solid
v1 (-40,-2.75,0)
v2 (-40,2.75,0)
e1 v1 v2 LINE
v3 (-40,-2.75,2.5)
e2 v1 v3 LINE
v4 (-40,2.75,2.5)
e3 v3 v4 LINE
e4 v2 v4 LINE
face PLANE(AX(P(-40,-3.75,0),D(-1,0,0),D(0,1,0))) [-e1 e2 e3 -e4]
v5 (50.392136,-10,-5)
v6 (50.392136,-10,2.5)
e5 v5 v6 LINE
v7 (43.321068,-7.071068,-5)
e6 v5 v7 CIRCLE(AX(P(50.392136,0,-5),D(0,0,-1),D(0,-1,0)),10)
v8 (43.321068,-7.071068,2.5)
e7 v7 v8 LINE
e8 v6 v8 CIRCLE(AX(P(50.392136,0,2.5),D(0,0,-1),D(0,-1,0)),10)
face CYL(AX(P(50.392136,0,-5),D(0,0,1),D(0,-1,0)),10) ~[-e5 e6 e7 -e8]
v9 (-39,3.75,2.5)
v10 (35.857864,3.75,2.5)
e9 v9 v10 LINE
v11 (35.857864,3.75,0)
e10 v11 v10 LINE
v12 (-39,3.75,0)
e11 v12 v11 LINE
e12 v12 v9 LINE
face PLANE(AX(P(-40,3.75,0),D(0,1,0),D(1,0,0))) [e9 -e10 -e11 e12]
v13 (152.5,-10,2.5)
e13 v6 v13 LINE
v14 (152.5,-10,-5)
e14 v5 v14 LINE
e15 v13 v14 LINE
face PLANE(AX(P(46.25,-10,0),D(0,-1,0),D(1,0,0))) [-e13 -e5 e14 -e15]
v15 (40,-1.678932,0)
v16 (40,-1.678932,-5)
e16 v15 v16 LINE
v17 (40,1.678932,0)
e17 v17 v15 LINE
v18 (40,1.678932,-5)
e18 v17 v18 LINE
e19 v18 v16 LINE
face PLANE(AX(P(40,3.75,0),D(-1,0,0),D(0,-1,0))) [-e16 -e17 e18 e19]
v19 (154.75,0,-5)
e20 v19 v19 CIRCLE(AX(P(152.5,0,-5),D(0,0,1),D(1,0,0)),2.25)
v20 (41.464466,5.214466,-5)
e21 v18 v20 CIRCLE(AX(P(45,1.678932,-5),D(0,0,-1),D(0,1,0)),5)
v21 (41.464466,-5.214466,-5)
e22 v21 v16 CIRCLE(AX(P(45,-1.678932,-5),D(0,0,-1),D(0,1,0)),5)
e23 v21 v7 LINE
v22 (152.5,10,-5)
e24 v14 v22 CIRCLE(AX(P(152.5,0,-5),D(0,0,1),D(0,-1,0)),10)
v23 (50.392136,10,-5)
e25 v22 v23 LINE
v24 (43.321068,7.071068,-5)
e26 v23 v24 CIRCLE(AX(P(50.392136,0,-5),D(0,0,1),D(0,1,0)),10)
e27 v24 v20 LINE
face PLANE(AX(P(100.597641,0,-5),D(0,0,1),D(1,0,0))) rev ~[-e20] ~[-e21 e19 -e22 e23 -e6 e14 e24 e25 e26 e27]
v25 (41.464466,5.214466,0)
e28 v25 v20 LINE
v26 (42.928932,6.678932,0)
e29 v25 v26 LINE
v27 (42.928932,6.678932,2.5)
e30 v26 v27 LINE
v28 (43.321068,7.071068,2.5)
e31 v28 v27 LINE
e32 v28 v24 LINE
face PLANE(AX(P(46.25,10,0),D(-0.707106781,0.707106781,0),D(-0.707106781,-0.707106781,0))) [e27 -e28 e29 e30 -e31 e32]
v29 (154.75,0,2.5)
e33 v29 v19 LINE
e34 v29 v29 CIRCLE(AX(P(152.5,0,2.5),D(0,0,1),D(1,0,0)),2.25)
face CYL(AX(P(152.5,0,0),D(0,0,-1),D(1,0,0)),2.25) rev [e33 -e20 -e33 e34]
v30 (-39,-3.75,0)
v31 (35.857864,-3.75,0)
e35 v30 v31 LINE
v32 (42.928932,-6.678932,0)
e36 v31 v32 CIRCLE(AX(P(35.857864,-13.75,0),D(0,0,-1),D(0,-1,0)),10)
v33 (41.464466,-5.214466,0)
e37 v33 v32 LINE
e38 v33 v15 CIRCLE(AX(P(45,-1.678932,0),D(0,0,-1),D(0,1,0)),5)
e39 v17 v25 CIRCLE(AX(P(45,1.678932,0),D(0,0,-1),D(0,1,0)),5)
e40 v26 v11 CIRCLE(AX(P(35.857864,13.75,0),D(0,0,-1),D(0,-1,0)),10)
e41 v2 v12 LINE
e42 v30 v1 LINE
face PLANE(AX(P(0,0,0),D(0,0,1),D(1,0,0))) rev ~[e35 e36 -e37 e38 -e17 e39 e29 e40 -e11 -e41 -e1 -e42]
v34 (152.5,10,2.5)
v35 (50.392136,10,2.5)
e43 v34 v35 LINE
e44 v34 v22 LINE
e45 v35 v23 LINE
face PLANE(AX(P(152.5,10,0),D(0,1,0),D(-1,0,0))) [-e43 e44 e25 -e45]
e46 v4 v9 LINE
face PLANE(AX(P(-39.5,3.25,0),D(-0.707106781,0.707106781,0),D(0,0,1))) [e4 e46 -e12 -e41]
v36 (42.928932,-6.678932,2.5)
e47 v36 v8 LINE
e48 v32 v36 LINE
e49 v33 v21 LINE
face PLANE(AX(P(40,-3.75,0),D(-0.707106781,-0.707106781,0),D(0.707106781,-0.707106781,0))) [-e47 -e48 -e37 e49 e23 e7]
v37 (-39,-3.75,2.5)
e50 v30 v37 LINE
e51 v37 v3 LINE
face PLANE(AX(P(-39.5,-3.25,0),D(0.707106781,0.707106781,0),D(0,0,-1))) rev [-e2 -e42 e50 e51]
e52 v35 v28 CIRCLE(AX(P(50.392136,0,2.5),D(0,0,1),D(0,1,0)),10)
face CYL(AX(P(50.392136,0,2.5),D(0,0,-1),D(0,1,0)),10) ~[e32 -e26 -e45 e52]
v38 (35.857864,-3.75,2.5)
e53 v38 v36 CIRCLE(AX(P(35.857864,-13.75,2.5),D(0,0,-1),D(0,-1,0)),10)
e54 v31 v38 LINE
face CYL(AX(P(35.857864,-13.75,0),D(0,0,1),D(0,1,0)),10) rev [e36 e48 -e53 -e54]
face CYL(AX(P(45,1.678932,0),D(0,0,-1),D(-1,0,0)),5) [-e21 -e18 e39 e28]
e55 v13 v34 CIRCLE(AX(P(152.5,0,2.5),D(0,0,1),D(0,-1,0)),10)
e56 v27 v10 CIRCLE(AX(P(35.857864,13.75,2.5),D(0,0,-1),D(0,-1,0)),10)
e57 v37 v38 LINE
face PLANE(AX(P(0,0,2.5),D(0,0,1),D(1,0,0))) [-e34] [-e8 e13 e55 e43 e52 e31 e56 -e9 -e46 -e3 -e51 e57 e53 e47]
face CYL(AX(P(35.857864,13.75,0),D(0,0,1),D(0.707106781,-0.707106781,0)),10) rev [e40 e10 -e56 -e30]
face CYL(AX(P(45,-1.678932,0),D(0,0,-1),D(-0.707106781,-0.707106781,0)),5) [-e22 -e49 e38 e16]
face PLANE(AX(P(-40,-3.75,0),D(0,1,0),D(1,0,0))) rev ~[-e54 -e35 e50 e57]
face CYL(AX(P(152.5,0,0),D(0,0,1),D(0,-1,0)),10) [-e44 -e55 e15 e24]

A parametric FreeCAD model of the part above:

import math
import FreeCAD as App
import Part
import Sketcher

V = App.Vector


def edges_at(feature, points):
    """Names of the edges that pass closest to the given points."""
    edges = feature.Shape.Edges
    near = lambda p: min(range(len(edges)), key=lambda i: edges[i].distToShape(Part.Vertex(*p))[0])
    return sorted({f"Edge{near(p) + 1}" for p in points})

doc = App.newDocument("Part")
params = doc.addObject("Spreadsheet::Sheet", "Params")
for row, (alias, value) in enumerate([
    ("sketch1_radius", "10 mm"),
    ("sketch1_diameter", "4.5 mm"),
    ("sketch1_width", "80 mm"),
    ("sketch1_height", "7.5 mm"),
    ("sketch1_width2", "106.25 mm"),
    ("pad1_length", "2.5 mm"),
    ("sketch2_radius", "10 mm"),
    ("sketch2_diameter", "4.5 mm"),
    ("sketch2_height", "7.5 mm"),
    ("sketch2_width", "106.25 mm"),
    ("pad2_length", "5 mm"),
    ("chamfer_size", "1 mm"),
    ("fillet_radius", "10 mm"),
    ("fillet2_radius", "5 mm"),
], start=1):
    params.set(f"A{row}", alias)
    params.set(f"B{row}", "=" + value)
    params.setAlias(f"B{row}", alias)

body = doc.addObject("PartDesign::Body", "Body")

# Sketch on XY plane
sketch1 = body.newObject("Sketcher::SketchObject", "Sketch")
sketch1.AttachmentSupport = (doc.getObject("XY_Plane"), [""])
sketch1.MapMode = "FlatFace"
sketch1.addGeometry(Part.LineSegment(V(-40, 3.8, 0), V(-40, -3.8, 0)), False)
sketch1.addGeometry(Part.LineSegment(V(-40, -3.8, 0), V(40, -3.8, 0)), False)
sketch1.addGeometry(Part.LineSegment(V(40, -3.8, 0), V(46.2, -10, 0)), False)
sketch1.addGeometry(Part.LineSegment(V(46.2, -10, 0), V(152.5, -10, 0)), False)
sketch1.addGeometry(Part.ArcOfCircle(Part.Circle(V(152.5, 0, 0), V(0, 0, 1), 10), math.radians(-90), math.radians(90)), False)
sketch1.addGeometry(Part.LineSegment(V(152.5, 10, 0), V(46.2, 10, 0)), False)
sketch1.addGeometry(Part.LineSegment(V(46.2, 10, 0), V(40, 3.8, 0)), False)
sketch1.addGeometry(Part.LineSegment(V(40, 3.8, 0), V(-40, 3.8, 0)), False)
sketch1.addGeometry(Part.Circle(V(152.5, 0, 0), V(0, 0, 1), 2.2), False)
sketch1.addConstraint(Sketcher.Constraint("Coincident", 0, 2, 1, 1))
sketch1.addConstraint(Sketcher.Constraint("Coincident", 1, 2, 2, 1))
sketch1.addConstraint(Sketcher.Constraint("Coincident", 2, 2, 3, 1))
sketch1.addConstraint(Sketcher.Constraint("Tangent", 3, 2, 4, 1))
sketch1.addConstraint(Sketcher.Constraint("Tangent", 4, 2, 5, 1))
sketch1.addConstraint(Sketcher.Constraint("Coincident", 5, 2, 6, 1))
sketch1.addConstraint(Sketcher.Constraint("Coincident", 6, 2, 7, 1))
sketch1.addConstraint(Sketcher.Constraint("Coincident", 7, 2, 0, 1))
sketch1.addConstraint(Sketcher.Constraint("Vertical", 0))
sketch1.addConstraint(Sketcher.Constraint("Horizontal", 1))
sketch1.addConstraint(Sketcher.Constraint("Horizontal", 3))
sketch1.addConstraint(Sketcher.Constraint("Horizontal", 5))
sketch1.addConstraint(Sketcher.Constraint("Horizontal", 7))
sketch1.addConstraint(Sketcher.Constraint("Coincident", 8, 3, 4, 3))
sketch1.addConstraint(Sketcher.Constraint("Symmetric", 0, 2, 6, 2, -1, 1))
sketch1.addConstraint(Sketcher.Constraint("Symmetric", 2, 2, 5, 2, -1))
sketch1.addConstraint(Sketcher.Constraint("Perpendicular", 2, 6))
sketch1.addConstraint(Sketcher.Constraint("Vertical", 1, 2, 6, 2))
sketch1.addConstraint(Sketcher.Constraint("Radius", 4, 10.0))
sketch1.addConstraint(Sketcher.Constraint("Diameter", 8, 4.5))
sketch1.addConstraint(Sketcher.Constraint("DistanceX", 1, 1, 1, 2, 80.0))
sketch1.addConstraint(Sketcher.Constraint("DistanceY", 0, 2, 0, 1, 7.5))
sketch1.addConstraint(Sketcher.Constraint("DistanceX", 3, 1, 3, 2, 106.25))
sketch1.setExpression("Constraints[18]", "Params.sketch1_radius")
sketch1.setExpression("Constraints[19]", "Params.sketch1_diameter")
sketch1.setExpression("Constraints[20]", "Params.sketch1_width")
sketch1.setExpression("Constraints[21]", "Params.sketch1_height")
sketch1.setExpression("Constraints[22]", "Params.sketch1_width2")
pad1 = body.newObject("PartDesign::Pad", "Pad")
pad1.Profile = sketch1
pad1.setExpression("Length", "Params.pad1_length")

# Sketch on XY plane
sketch2 = body.newObject("Sketcher::SketchObject", "Sketch001")
sketch2.AttachmentSupport = (doc.getObject("XY_Plane"), [""])
sketch2.MapMode = "FlatFace"
sketch2.addGeometry(Part.LineSegment(V(46.2, 10, 0), V(40, 3.8, 0)), False)
sketch2.addGeometry(Part.LineSegment(V(40, 3.8, 0), V(40, -3.8, 0)), False)
sketch2.addGeometry(Part.LineSegment(V(40, -3.8, 0), V(46.2, -10, 0)), False)
sketch2.addGeometry(Part.LineSegment(V(46.2, -10, 0), V(152.5, -10, 0)), False)
sketch2.addGeometry(Part.ArcOfCircle(Part.Circle(V(152.5, 0, 0), V(0, 0, 1), 10), math.radians(-90), math.radians(90)), False)
sketch2.addGeometry(Part.LineSegment(V(152.5, 10, 0), V(46.2, 10, 0)), False)
sketch2.addGeometry(Part.Circle(V(152.5, 0, 0), V(0, 0, 1), 2.2), False)
sketch2.addConstraint(Sketcher.Constraint("Coincident", 0, 2, 1, 1))
sketch2.addConstraint(Sketcher.Constraint("Coincident", 1, 2, 2, 1))
sketch2.addConstraint(Sketcher.Constraint("Coincident", 2, 2, 3, 1))
sketch2.addConstraint(Sketcher.Constraint("Tangent", 3, 2, 4, 1))
sketch2.addConstraint(Sketcher.Constraint("Tangent", 4, 2, 5, 1))
sketch2.addConstraint(Sketcher.Constraint("Coincident", 5, 2, 0, 1))
sketch2.addConstraint(Sketcher.Constraint("Vertical", 1))
sketch2.addConstraint(Sketcher.Constraint("Horizontal", 3))
sketch2.addConstraint(Sketcher.Constraint("Horizontal", 5))
sketch2.addConstraint(Sketcher.Constraint("Coincident", 6, 3, 4, 3))
sketch2.addConstraint(Sketcher.Constraint("Symmetric", 2, 2, 5, 2, -1))
sketch2.addConstraint(Sketcher.Constraint("Perpendicular", 0, 2))
sketch2.addConstraint(Sketcher.Constraint("Equal", 0, 2))
sketch2.addConstraint(Sketcher.Constraint("Radius", 4, 10.0))
sketch2.addConstraint(Sketcher.Constraint("Diameter", 6, 4.5))
sketch2.addConstraint(Sketcher.Constraint("DistanceY", 1, 2, 1, 1, 7.5))
sketch2.addConstraint(Sketcher.Constraint("DistanceX", -1, 1, 0, 2, 40.0))
sketch2.addConstraint(Sketcher.Constraint("DistanceX", 3, 1, 3, 2, 106.25))
sketch2.setExpression("Constraints[13]", "Params.sketch2_radius")
sketch2.setExpression("Constraints[14]", "Params.sketch2_diameter")
sketch2.setExpression("Constraints[15]", "Params.sketch2_height")
sketch2.setExpression("Constraints[17]", "Params.sketch2_width")
pad2 = body.newObject("PartDesign::Pad", "Pad001")
pad2.Profile = sketch2
pad2.setExpression("Length", "Params.pad2_length")
pad2.Reversed = True
doc.recompute()

chamfer = body.newObject("PartDesign::Chamfer", "Chamfer")
chamfer.Base = (pad2, edges_at(pad2, [(-40, -3.75, 1.25), (-40, 3.75, 1.25)]))
chamfer.setExpression("Size", "Params.chamfer_size")
doc.recompute()

fillet = body.newObject("PartDesign::Fillet", "Fillet")
fillet.Base = (chamfer, edges_at(chamfer, [
    (40, -3.75, 1.25),
    (46.25, -10, -1.25),
    (46.25, 10, -1.25),
    (40, 3.75, 1.25),
]))
fillet.setExpression("Radius", "Params.fillet_radius")
doc.recompute()

fillet2 = body.newObject("PartDesign::Fillet", "Fillet001")
fillet2.Base = (fillet, edges_at(fillet, [(40, -3.75, -2.5), (40, 3.75, -2.5)]))
fillet2.setExpression("Radius", "Params.fillet2_radius")

doc.recompute()
